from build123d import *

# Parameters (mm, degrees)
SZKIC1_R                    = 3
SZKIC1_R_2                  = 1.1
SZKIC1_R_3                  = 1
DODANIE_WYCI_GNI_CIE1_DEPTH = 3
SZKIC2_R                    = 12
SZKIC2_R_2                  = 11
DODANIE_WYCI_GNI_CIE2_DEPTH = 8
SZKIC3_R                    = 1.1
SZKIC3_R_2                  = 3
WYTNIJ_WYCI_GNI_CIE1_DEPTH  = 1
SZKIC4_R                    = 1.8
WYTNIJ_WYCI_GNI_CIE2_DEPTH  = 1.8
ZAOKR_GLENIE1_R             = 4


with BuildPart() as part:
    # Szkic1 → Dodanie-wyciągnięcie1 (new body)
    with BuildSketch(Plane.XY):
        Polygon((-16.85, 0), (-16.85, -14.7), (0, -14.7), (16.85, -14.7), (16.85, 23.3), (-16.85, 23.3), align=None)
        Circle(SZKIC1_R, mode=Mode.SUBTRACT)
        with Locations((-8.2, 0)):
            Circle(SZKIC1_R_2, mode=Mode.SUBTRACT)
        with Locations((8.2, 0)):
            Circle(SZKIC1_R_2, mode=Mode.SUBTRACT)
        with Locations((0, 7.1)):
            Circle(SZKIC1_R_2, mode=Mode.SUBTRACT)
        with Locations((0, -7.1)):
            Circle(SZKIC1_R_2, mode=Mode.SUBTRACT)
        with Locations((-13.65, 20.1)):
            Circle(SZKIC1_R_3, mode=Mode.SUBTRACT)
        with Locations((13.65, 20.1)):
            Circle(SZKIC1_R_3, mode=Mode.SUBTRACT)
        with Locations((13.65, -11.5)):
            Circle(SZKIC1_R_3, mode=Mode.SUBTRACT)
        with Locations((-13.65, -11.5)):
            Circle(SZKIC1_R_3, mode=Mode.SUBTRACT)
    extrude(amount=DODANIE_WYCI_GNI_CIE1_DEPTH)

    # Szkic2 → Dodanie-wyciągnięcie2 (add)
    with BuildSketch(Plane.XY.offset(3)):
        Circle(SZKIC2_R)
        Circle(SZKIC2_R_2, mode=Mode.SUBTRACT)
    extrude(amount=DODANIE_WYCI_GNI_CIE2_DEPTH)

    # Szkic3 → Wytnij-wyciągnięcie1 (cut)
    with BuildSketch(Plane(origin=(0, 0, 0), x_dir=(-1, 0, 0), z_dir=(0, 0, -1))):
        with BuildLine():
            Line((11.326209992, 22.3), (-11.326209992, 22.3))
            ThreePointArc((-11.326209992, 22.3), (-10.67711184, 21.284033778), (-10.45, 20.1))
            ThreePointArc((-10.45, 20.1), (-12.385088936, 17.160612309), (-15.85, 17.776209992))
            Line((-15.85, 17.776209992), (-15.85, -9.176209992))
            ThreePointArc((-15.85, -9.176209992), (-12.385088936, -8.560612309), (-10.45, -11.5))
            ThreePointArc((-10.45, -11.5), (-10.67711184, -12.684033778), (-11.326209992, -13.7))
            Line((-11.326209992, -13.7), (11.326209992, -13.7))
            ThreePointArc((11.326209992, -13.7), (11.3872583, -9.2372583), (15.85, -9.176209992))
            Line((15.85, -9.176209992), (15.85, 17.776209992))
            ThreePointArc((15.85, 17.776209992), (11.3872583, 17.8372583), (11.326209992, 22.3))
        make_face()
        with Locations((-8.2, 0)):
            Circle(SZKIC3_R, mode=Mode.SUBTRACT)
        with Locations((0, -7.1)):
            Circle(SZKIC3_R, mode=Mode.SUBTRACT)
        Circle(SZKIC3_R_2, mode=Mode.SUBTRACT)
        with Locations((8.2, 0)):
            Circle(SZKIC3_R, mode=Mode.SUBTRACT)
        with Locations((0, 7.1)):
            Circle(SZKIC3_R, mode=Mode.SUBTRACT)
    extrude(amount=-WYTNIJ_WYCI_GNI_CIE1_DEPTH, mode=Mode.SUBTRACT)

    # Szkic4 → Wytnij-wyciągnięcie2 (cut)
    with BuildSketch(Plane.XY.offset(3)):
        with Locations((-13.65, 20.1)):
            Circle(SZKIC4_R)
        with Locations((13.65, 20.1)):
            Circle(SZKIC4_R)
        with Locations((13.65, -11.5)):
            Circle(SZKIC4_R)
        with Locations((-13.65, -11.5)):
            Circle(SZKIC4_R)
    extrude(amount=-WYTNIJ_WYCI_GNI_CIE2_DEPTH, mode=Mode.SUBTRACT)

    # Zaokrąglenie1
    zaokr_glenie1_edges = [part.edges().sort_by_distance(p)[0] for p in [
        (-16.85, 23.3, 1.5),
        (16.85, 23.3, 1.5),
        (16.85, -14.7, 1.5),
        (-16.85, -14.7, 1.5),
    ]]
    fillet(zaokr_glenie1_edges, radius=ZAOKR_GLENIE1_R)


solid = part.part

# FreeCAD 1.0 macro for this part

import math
import FreeCAD as App
import Part
import Sketcher
Q = App.Units.Quantity


def edges_at(feature, points):
    """Names of the edges that pass closest to the given points."""
    edges = feature.Shape.Edges
    near = lambda p: min(range(len(edges)), key=lambda i: edges[i].distToShape(Part.Vertex(*p))[0])
    return sorted({f"Edge{near(p) + 1}" for p in points})


def add_polygon(sketch, points):
    """Adds a closed chain of lines whose ends are joined by coincident constraints."""
    first, n = sketch.GeometryCount, len(points)
    for a, b in zip(points, points[1:] + points[:1]):
        sketch.addGeometry(Part.LineSegment(App.Vector(*a, 0), App.Vector(*b, 0)), False)
    for i in range(n):
        sketch.addConstraint(Sketcher.Constraint("Coincident", first + i, 2, first + (i + 1) % n, 1))

doc = App.newDocument("Part")
body = doc.addObject("PartDesign::Body", "Body")

sketch1 = body.newObject("Sketcher::SketchObject", "Sketch")
sketch1.AttachmentSupport = (doc.getObject("XY_Plane"), [""])
sketch1.MapMode = "FlatFace"
add_polygon(sketch1, [(-16.9, -14.7), (16.9, -14.7), (16.9, 23.3), (-16.9, 23.3)])
sketch1.addGeometry(Part.Circle(App.Vector(-13.7, -11.5, 0), App.Vector(0, 0, 1), 1), False)
sketch1.addGeometry(Part.Circle(App.Vector(-8.2, 0, 0), App.Vector(0, 0, 1), 1.1), False)
sketch1.addGeometry(Part.Circle(App.Vector(0, -7.1, 0), App.Vector(0, 0, 1), 1.1), False)
sketch1.addGeometry(Part.Circle(App.Vector(13.7, -11.5, 0), App.Vector(0, 0, 1), 1), False)
sketch1.addGeometry(Part.Circle(App.Vector(0, 0, 0), App.Vector(0, 0, 1), 3), False)
sketch1.addGeometry(Part.Circle(App.Vector(8.2, 0, 0), App.Vector(0, 0, 1), 1.1), False)
sketch1.addGeometry(Part.Circle(App.Vector(-13.7, 20.1, 0), App.Vector(0, 0, 1), 1), False)
sketch1.addGeometry(Part.Circle(App.Vector(0, 7.1, 0), App.Vector(0, 0, 1), 1.1), False)
sketch1.addGeometry(Part.Circle(App.Vector(13.7, 20.1, 0), App.Vector(0, 0, 1), 1), False)
sketch1.addConstraint([
    Sketcher.Constraint("Horizontal", 0),
    Sketcher.Constraint("Vertical", 1),
    Sketcher.Constraint("Horizontal", 2),
    Sketcher.Constraint("Vertical", 3),
    Sketcher.Constraint("Coincident", 8, 3, -1, 1),
    Sketcher.Constraint("Equal", 5, 6),
    Sketcher.Constraint("Equal", 4, 7),
    Sketcher.Constraint("Equal", 6, 9),
    Sketcher.Constraint("Equal", 7, 10),
    Sketcher.Constraint("Equal", 9, 11),
    Sketcher.Constraint("Equal", 10, 12),
    Sketcher.Constraint("Symmetric", 5, 3, 9, 3, -1, 1),
    Sketcher.Constraint("Symmetric", 6, 3, 11, 3, -1, 1),
    Sketcher.Constraint("Symmetric", 4, 3, 7, 3, -2),
    Sketcher.Constraint("Symmetric", 10, 3, 12, 3, -2),
    Sketcher.Constraint("PointOnObject", 5, 3, -1),
    Sketcher.Constraint("PointOnObject", 6, 3, -2),
    Sketcher.Constraint("Vertical", 4, 3, 10, 3),
    Sketcher.Constraint("Diameter", 4, Q("2 mm")),
    Sketcher.Constraint("Diameter", 8, Q("6 mm")),
    Sketcher.Constraint("Diameter", 5, Q("2.2 mm")),
    Sketcher.Constraint("DistanceY", 1, 1, 1, 2, Q("38 mm")),
    Sketcher.Constraint("DistanceX", 0, 1, 0, 2, Q("33.7 mm")),
    Sketcher.Constraint("DistanceY", 11, 3, 10, 3, Q("13 mm")),
    Sketcher.Constraint("DistanceY", 4, 3, -1, 1, Q("11.5 mm")),
    Sketcher.Constraint("DistanceX", 5, 3, -1, 1, Q("8.2 mm")),
    Sketcher.Constraint("DistanceY", 6, 3, -1, 1, Q("7.1 mm")),
    Sketcher.Constraint("DistanceY", 0, 2, -1, 1, Q("14.7 mm")),
    Sketcher.Constraint("DistanceX", 4, 3, 7, 3, Q("27.3 mm")),
    Sketcher.Constraint("DistanceX", 7, 3, 0, 2, Q("3.2 mm")),
])
pad1 = body.newObject("PartDesign::Pad", "Pad")
pad1.Profile = sketch1
pad1.Length = 3

sketch2 = body.newObject("Sketcher::SketchObject", "Sketch001")
sketch2.AttachmentSupport = (doc.getObject("XY_Plane"), [""])
sketch2.MapMode = "FlatFace"
sketch2.AttachmentOffset = App.Placement(App.Vector(0, 0, 3), App.Rotation())
sketch2.addGeometry([
    Part.Circle(App.Vector(0, 0, 0), App.Vector(0, 0, 1), 12),
    Part.Circle(App.Vector(0, 0, 0), App.Vector(0, 0, 1), 11),
], False)
sketch2.addConstraint([
    Sketcher.Constraint("Coincident", 0, 3, -1, 1),
    Sketcher.Constraint("Coincident", 1, 3, -1, 1),
    Sketcher.Constraint("Diameter", 0, Q("24 mm")),
    Sketcher.Constraint("Diameter", 1, Q("22 mm")),
])
pad2 = body.newObject("PartDesign::Pad", "Pad001")
pad2.Profile = sketch2
pad2.Length = 8

sketch3 = body.newObject("Sketcher::SketchObject", "Sketch002")
sketch3.AttachmentSupport = (doc.getObject("XY_Plane"), [""])
sketch3.MapMode = "FlatFace"
sketch3.addGeometry([
    Part.LineSegment(App.Vector(-11.3, 22.3, 0), App.Vector(11.3, 22.3, 0)),
    Part.ArcOfCircle(Part.Circle(App.Vector(13.7, 20.1, 0), App.Vector(0, 0, 1), 3.2), math.radians(137), math.radians(180)),
    Part.ArcOfCircle(Part.Circle(App.Vector(13.7, 20.1, 0), App.Vector(0, 0, 1), 3.2), math.radians(-180), math.radians(-47)),
    Part.LineSegment(App.Vector(15.8, 17.8, 0), App.Vector(15.8, -9.2, 0)),
    Part.ArcOfCircle(Part.Circle(App.Vector(13.7, -11.5, 0), App.Vector(0, 0, 1), 3.2), math.radians(47), math.radians(180)),
    Part.ArcOfCircle(Part.Circle(App.Vector(13.7, -11.5, 0), App.Vector(0, 0, 1), 3.2), math.radians(-180), math.radians(-137)),
    Part.LineSegment(App.Vector(11.3, -13.7, 0), App.Vector(-11.3, -13.7, 0)),
    Part.ArcOfCircle(Part.Circle(App.Vector(-13.7, -11.5, 0), App.Vector(0, 0, 1), 3.2), math.radians(-43), math.radians(133)),
    Part.LineSegment(App.Vector(-15.8, -9.2, 0), App.Vector(-15.8, 17.8, 0)),
    Part.ArcOfCircle(Part.Circle(App.Vector(-13.7, 20.1, 0), App.Vector(0, 0, 1), 3.2), math.radians(-133), math.radians(43)),
    Part.Circle(App.Vector(0, -7.1, 0), App.Vector(0, 0, 1), 1.1),
    Part.Circle(App.Vector(8.2, 0, 0), App.Vector(0, 0, 1), 1.1),
    Part.Circle(App.Vector(0, 0, 0), App.Vector(0, 0, 1), 3),
    Part.Circle(App.Vector(-8.2, 0, 0), App.Vector(0, 0, 1), 1.1),
    Part.Circle(App.Vector(0, 7.1, 0), App.Vector(0, 0, 1), 1.1),
], False)
sketch3.addConstraint([
    Sketcher.Constraint("Coincident", 0, 2, 1, 1),
    Sketcher.Constraint("Tangent", 1, 2, 2, 1),
    Sketcher.Constraint("Coincident", 2, 2, 3, 1),
    Sketcher.Constraint("Coincident", 3, 2, 4, 1),
    Sketcher.Constraint("Tangent", 4, 2, 5, 1),
    Sketcher.Constraint("Coincident", 5, 2, 6, 1),
    Sketcher.Constraint("Coincident", 6, 2, 7, 1),
    Sketcher.Constraint("Coincident", 7, 2, 8, 1),
    Sketcher.Constraint("Coincident", 8, 2, 9, 1),
    Sketcher.Constraint("Coincident", 9, 2, 0, 1),
    Sketcher.Constraint("Horizontal", 0),
    Sketcher.Constraint("Vertical", 3),
    Sketcher.Constraint("Horizontal", 6),
    Sketcher.Constraint("Vertical", 8),
    Sketcher.Constraint("Coincident", 12, 3, -1, 1),
    Sketcher.Constraint("Equal", 1, 2),
    Sketcher.Constraint("Equal", 2, 4),
    Sketcher.Constraint("Equal", 4, 5),
    Sketcher.Constraint("Equal", 5, 7),
    Sketcher.Constraint("Equal", 7, 9),
    Sketcher.Constraint("Equal", 10, 11),
    Sketcher.Constraint("Equal", 11, 13),
    Sketcher.Constraint("Equal", 13, 14),
    Sketcher.Constraint("Symmetric", 11, 3, 13, 3, -1, 1),
    Sketcher.Constraint("Symmetric", 10, 3, 14, 3, -1, 1),
    Sketcher.Constraint("Symmetric", 4, 3, 7, 3, -2),
    Sketcher.Constraint("Symmetric", 1, 3, 9, 3, -2),
    Sketcher.Constraint("PointOnObject", 10, 3, -2),
    Sketcher.Constraint("PointOnObject", 11, 3, -1),
    Sketcher.Constraint("Horizontal", 9, 3, 1, 2),
    Sketcher.Constraint("Horizontal", 7, 3, 4, 2),
    Sketcher.Constraint("Horizontal", 3, 2, 7, 2),
    Sketcher.Constraint("Vertical", 2, 3, 4, 3),
    Sketcher.Constraint("Vertical", 0, 2, 5, 2),
    Sketcher.Constraint("Diameter", 12, Q("6 mm")),
    Sketcher.Constraint("Diameter", 10, Q("2.2 mm")),
    Sketcher.Constraint("Radius", 1, Q("3.2 mm")),
    Sketcher.Constraint("DistanceY", 14, 3, 9, 3, Q("13 mm")),
    Sketcher.Constraint("DistanceY", -1, 1, 1, 3, Q("20.1 mm")),
    Sketcher.Constraint("DistanceY", 4, 3, -1, 1, Q("11.5 mm")),
    Sketcher.Constraint("DistanceX", -1, 1, 11, 3, Q("8.2 mm")),
    Sketcher.Constraint("DistanceY", -1, 1, 0, 2, Q("22.3 mm")),
    Sketcher.Constraint("DistanceX", 7, 3, 4, 3, Q("27.3 mm")),
    Sketcher.Constraint("DistanceX", 1, 3, 2, 2, Q("2.2 mm")),
])
pocket1 = body.newObject("PartDesign::Pocket", "Pocket")
pocket1.Profile = sketch3
pocket1.Length = 1
pocket1.Reversed = True

sketch4 = body.newObject("Sketcher::SketchObject", "Sketch003")
sketch4.AttachmentSupport = (doc.getObject("XY_Plane"), [""])
sketch4.MapMode = "FlatFace"
sketch4.AttachmentOffset = App.Placement(App.Vector(0, 0, 3), App.Rotation())
sketch4.addGeometry([
    Part.Circle(App.Vector(-13.7, 20.1, 0), App.Vector(0, 0, 1), 1.8),
    Part.Circle(App.Vector(13.7, 20.1, 0), App.Vector(0, 0, 1), 1.8),
    Part.Circle(App.Vector(13.7, -11.5, 0), App.Vector(0, 0, 1), 1.8),
    Part.Circle(App.Vector(-13.7, -11.5, 0), App.Vector(0, 0, 1), 1.8),
], False)
sketch4.addConstraint([
    Sketcher.Constraint("Equal", 0, 1),
    Sketcher.Constraint("Equal", 1, 2),
    Sketcher.Constraint("Equal", 2, 3),
    Sketcher.Constraint("Symmetric", 0, 3, 1, 3, -2),
    Sketcher.Constraint("Symmetric", 2, 3, 3, 3, -2),
    Sketcher.Constraint("Vertical", 1, 3, 2, 3),
    Sketcher.Constraint("Diameter", 0, Q("3.6 mm")),
    Sketcher.Constraint("DistanceY", -1, 1, 0, 3, Q("20.1 mm")),
    Sketcher.Constraint("DistanceY", 2, 3, -1, 1, Q("11.5 mm")),
    Sketcher.Constraint("DistanceX", 0, 3, 1, 3, Q("27.3 mm")),
])
pocket2 = body.newObject("PartDesign::Pocket", "Pocket001")
pocket2.Profile = sketch4
pocket2.Length = 1.8
doc.recompute()

fillet = body.newObject("PartDesign::Fillet", "Fillet")
fillet.Base = (pocket2, edges_at(pocket2, [
    (-16.85, 23.3, 1.5),
    (16.85, 23.3, 1.5),
    (16.85, -14.7, 1.5),
    (-16.85, -14.7, 1.5),
]))
fillet.Radius = 4

doc.recompute()
